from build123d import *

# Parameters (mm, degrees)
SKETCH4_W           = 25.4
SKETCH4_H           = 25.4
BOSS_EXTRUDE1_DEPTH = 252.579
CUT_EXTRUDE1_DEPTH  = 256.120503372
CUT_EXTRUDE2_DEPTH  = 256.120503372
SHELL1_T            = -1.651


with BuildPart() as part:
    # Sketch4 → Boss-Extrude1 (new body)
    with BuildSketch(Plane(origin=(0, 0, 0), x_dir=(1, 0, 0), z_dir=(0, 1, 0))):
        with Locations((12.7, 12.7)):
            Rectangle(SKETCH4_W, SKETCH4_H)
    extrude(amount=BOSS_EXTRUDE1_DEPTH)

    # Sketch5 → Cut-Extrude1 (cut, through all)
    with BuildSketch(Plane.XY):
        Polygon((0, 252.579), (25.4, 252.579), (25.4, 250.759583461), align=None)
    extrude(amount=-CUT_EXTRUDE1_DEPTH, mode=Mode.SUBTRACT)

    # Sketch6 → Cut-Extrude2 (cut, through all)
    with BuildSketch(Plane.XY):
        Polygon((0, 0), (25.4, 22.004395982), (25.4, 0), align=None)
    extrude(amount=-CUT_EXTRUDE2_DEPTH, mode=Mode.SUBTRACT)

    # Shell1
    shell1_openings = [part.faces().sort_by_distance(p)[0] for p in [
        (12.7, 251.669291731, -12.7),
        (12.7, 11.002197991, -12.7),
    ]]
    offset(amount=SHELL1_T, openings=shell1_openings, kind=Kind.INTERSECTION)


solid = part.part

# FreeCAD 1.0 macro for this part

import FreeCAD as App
import Part
import Sketcher
Q = App.Units.Quantity


def faces_at(feature, points):
    """Names of the faces that lie closest to the given points."""
    faces = feature.Shape.Faces
    near = lambda p: min(range(len(faces)), key=lambda i: faces[i].distToShape(Part.Vertex(*p))[0])
    return sorted({f"Face{near(p) + 1}" for p in points})


def add_polygon(sketch, points):
    """Adds a closed chain of lines whose ends are joined by coincident constraints."""
    first, n = sketch.GeometryCount, len(points)
    for a, b in zip(points, points[1:] + points[:1]):
        sketch.addGeometry(Part.LineSegment(App.Vector(*a, 0), App.Vector(*b, 0)), False)
    for i in range(n):
        sketch.addConstraint(Sketcher.Constraint("Coincident", first + i, 2, first + (i + 1) % n, 1))

doc = App.newDocument("Part")
body = doc.addObject("PartDesign::Body", "Body")

# Sketch on XZ plane
sketch1 = body.newObject("Sketcher::SketchObject", "Sketch")
sketch1.AttachmentSupport = (doc.getObject("XZ_Plane"), [""])
sketch1.MapMode = "FlatFace"
add_polygon(sketch1, [(0, -25), (0, 0), (25, 0), (25, -25)])  # lines 0-3
sketch1.addConstraint([
    Sketcher.Constraint("Vertical", 0),
    Sketcher.Constraint("Horizontal", 1),
    Sketcher.Constraint("Vertical", 2),
    Sketcher.Constraint("Horizontal", 3),
    Sketcher.Constraint("Coincident", 0, 2, -1, 1),
    Sketcher.Constraint("Equal", 3, 0),
    Sketcher.Constraint("DistanceX", 1, 1, 1, 2, Q("1 in")),
])
pad1 = body.newObject("PartDesign::Pad", "Pad")
pad1.Profile = sketch1
pad1.Length = 252.579
pad1.Reversed = True

# Sketch on XY plane
sketch2 = body.newObject("Sketcher::SketchObject", "Sketch001")
sketch2.AttachmentSupport = (doc.getObject("XY_Plane"), [""])
sketch2.MapMode = "FlatFace"
add_polygon(sketch2, [(25.4, 252.6), (0, 252.6), (25.4, 250.8)])  # lines 0-2
sketch2.addConstraint([
    Sketcher.Constraint("Horizontal", 0),
    Sketcher.Constraint("Vertical", 2),
    Sketcher.Constraint("PointOnObject", 0, 2, -2),
    Sketcher.Constraint("DistanceX", 0, 2, 0, 1, Q("1 in")),
    Sketcher.Constraint("DistanceY", -1, 1, 0, 2, Q("252.579 mm")),
    Sketcher.Constraint("Distance", 1, Q("25.46508 mm")),
])
pocket1 = body.newObject("PartDesign::Pocket", "Pocket")
pocket1.Profile = sketch2
pocket1.Type = "ThroughAll"

# Sketch on XY plane
sketch3 = body.newObject("Sketcher::SketchObject", "Sketch002")
sketch3.AttachmentSupport = (doc.getObject("XY_Plane"), [""])
sketch3.MapMode = "FlatFace"
add_polygon(sketch3, [(25, 22), (0, 0), (25, 0)])  # lines 0-2
sketch3.addConstraint([
    Sketcher.Constraint("Horizontal", 1),
    Sketcher.Constraint("Vertical", 2),
    Sketcher.Constraint("Coincident", 0, 2, -1, 1),
    Sketcher.Constraint("DistanceX", 1, 1, 1, 2, Q("1 in")),
    Sketcher.Constraint("DistanceY", 2, 1, 2, 2, Q("22.004396 mm")),
])
pocket2 = body.newObject("PartDesign::Pocket", "Pocket001")
pocket2.Profile = sketch3
pocket2.Type = "ThroughAll"
doc.recompute()

thickness = body.newObject("PartDesign::Thickness", "Thickness")
thickness.Base = (pocket2, faces_at(pocket2, [(12.7, 251.669, -12.7), (12.7, 11.002, -12.7)]))
thickness.Value = Q("0.065 in")
thickness.Reversed = True
thickness.Join = "Intersection"

doc.recompute()
